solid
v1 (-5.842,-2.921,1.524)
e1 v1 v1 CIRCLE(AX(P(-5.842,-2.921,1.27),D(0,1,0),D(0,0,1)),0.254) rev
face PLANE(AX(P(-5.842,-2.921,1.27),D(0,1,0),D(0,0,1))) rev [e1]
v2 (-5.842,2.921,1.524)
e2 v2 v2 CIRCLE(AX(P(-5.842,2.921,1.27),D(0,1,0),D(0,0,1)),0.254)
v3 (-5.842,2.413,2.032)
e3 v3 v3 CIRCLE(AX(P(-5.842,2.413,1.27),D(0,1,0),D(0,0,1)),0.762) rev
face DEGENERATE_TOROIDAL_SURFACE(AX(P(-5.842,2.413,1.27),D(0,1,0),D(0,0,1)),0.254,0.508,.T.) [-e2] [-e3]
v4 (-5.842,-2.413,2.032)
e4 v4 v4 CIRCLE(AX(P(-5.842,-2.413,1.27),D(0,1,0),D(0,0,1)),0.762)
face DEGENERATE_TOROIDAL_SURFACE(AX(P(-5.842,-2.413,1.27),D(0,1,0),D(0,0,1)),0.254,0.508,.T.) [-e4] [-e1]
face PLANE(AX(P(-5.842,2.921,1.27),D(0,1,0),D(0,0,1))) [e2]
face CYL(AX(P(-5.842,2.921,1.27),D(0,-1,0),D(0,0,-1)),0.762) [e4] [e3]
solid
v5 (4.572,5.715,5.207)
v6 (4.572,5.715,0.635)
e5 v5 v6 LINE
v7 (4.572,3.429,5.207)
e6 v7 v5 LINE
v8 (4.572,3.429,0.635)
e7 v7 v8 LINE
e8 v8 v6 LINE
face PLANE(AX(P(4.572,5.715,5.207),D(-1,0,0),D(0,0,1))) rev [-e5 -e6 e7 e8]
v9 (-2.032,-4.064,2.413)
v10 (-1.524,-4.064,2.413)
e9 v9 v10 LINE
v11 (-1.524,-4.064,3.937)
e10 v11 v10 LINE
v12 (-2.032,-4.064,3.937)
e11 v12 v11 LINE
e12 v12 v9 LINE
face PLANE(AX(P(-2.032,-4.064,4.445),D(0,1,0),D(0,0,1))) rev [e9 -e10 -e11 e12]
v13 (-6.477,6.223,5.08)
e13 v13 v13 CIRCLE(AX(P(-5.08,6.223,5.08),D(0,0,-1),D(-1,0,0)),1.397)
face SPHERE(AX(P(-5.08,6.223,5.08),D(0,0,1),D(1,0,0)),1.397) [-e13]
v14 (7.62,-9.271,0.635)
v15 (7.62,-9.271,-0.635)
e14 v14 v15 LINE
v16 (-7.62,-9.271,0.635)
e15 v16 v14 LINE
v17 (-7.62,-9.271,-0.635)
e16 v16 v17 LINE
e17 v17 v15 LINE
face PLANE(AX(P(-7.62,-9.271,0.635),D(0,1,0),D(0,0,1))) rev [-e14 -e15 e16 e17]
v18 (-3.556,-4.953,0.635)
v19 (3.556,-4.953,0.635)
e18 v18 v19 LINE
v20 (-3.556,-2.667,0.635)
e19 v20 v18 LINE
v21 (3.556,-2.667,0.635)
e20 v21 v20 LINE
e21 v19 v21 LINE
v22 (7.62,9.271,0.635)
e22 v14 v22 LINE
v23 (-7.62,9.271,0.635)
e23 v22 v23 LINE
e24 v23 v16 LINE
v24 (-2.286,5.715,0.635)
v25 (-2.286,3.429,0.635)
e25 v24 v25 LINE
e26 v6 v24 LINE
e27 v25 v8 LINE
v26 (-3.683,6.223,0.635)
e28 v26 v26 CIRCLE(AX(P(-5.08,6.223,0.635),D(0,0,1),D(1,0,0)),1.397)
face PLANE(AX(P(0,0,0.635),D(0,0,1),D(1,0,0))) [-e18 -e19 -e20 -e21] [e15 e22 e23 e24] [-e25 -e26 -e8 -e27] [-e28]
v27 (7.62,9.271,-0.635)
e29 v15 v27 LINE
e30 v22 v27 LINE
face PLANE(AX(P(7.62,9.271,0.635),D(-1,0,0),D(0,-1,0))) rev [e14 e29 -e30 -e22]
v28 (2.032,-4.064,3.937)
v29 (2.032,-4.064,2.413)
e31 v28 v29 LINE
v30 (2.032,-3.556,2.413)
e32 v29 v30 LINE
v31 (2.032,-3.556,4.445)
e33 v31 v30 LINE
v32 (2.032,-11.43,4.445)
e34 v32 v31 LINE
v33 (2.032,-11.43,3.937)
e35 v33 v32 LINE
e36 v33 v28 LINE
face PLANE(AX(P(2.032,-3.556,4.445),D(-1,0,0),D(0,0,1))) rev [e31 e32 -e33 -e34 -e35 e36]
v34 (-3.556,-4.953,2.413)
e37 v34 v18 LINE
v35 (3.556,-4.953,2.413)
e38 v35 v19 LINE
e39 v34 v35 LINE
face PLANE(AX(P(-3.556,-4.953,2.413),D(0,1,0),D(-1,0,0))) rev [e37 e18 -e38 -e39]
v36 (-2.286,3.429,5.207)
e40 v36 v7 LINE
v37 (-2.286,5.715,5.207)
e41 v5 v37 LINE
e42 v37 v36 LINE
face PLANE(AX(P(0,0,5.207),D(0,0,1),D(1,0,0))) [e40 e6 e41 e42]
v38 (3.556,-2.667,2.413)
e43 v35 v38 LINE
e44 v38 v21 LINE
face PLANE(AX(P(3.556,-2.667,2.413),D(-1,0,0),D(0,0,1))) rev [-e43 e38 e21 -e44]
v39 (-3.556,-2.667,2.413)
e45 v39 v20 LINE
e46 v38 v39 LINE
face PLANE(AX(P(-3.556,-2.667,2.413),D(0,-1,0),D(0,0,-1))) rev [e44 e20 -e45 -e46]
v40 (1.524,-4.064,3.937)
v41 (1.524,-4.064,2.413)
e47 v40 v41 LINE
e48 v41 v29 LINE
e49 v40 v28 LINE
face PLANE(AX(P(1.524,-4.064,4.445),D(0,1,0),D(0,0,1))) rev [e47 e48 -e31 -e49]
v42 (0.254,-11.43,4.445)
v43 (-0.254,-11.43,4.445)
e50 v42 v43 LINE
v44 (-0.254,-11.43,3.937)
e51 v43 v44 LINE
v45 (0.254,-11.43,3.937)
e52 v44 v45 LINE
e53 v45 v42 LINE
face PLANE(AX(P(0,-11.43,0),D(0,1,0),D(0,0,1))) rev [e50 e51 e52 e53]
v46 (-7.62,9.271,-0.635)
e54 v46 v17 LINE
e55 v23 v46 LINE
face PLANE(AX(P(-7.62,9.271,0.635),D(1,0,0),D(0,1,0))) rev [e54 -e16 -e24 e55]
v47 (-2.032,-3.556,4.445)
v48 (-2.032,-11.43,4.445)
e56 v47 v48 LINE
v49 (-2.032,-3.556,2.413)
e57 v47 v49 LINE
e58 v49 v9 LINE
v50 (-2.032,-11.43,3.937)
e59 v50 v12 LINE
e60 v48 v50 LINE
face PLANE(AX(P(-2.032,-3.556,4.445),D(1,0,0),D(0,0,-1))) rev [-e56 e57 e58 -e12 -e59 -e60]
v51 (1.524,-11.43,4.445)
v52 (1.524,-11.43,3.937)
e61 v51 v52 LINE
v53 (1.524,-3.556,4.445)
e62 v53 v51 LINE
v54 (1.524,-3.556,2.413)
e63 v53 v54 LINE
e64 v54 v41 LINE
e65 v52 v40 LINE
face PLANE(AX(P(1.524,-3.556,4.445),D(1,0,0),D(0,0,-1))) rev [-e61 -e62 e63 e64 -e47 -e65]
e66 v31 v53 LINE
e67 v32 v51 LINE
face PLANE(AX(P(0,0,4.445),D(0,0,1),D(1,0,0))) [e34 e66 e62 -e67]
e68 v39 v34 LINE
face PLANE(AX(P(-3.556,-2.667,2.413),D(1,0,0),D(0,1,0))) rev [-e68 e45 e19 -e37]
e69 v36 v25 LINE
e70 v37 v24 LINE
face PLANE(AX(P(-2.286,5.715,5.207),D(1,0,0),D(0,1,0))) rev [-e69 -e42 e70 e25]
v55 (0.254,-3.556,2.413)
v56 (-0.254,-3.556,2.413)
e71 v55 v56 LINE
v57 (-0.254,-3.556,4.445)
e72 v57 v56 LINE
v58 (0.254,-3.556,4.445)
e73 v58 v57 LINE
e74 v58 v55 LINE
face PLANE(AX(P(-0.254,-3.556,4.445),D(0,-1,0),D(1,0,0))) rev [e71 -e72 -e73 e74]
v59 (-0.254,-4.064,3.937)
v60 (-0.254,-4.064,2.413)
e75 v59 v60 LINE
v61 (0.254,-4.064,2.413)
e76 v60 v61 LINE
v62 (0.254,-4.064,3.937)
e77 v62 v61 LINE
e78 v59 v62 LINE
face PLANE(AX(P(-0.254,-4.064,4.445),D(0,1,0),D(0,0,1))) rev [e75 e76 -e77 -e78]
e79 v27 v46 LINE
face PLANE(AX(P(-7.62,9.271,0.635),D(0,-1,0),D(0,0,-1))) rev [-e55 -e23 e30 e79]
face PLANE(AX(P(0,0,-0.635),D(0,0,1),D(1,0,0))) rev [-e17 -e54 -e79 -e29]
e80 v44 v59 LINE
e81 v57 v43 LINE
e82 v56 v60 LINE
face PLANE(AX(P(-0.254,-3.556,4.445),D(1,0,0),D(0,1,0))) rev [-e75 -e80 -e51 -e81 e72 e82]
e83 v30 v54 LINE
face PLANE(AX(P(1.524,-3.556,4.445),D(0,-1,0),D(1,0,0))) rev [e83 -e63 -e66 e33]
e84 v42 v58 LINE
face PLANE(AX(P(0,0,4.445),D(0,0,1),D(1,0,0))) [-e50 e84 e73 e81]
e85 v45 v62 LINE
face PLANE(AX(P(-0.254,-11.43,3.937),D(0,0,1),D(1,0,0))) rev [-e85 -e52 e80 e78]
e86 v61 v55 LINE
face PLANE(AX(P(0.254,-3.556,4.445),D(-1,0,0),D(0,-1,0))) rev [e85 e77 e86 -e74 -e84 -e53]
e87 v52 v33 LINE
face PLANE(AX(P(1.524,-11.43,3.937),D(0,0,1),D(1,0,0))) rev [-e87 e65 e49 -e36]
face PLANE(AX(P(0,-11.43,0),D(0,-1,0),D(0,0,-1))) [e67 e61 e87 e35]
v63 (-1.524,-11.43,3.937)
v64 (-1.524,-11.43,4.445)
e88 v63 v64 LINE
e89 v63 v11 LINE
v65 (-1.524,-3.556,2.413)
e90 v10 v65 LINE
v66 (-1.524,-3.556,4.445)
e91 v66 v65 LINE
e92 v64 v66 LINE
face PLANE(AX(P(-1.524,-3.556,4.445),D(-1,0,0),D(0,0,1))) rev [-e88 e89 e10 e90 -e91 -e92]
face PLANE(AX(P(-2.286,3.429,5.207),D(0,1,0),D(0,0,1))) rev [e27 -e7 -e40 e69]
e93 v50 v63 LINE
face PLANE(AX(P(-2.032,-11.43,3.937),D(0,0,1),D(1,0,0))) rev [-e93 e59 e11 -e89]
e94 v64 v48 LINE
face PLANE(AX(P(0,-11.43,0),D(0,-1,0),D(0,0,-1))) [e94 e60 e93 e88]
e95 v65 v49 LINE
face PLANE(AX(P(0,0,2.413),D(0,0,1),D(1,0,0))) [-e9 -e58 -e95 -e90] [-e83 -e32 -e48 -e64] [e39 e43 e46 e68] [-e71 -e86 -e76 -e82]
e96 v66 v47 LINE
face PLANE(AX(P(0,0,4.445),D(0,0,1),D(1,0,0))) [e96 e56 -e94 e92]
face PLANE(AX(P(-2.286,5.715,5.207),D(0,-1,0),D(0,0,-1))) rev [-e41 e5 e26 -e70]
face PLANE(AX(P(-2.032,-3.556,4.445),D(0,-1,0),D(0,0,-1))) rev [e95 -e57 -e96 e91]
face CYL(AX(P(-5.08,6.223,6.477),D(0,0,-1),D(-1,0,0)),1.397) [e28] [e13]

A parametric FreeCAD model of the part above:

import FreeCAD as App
import Part
import Sketcher
from FreeCAD import Vector
Q = App.Units.Quantity


def edges_at(feature, points):
    """Names of the edges that pass closest to the given points."""
    edges = feature.Shape.Edges
    near = lambda p: min(range(len(edges)), key=lambda i: edges[i].distToShape(Part.Vertex(*p))[0])
    return sorted({f"Edge{near(p) + 1}" for p in points})


def add_polygon(sketch, points):
    """Adds a closed chain of lines whose ends are joined by coincident constraints."""
    first, n = sketch.GeometryCount, len(points)
    for a, b in zip(points, points[1:] + points[:1]):
        sketch.addGeometry(Part.LineSegment(App.Vector(*a, 0), App.Vector(*b, 0)), False)
    for i in range(n):
        sketch.addConstraint(Sketcher.Constraint("Coincident", first + i, 2, first + (i + 1) % n, 1))

doc = App.newDocument("Part")
params = doc.addObject("Spreadsheet::Sheet", "Params")
for row, (alias, value) in enumerate([
    ("sketch1_width", "0.6 in"),
    ("sketch1_height", "0.73 in"),
    ("pad1_length", "0.05 in"),
    ("sketch2_width", "0.28 in"),
    ("sketch2_height", "0.09 in"),
    ("pad2_length", "0.07 in"),
    ("sketch3_width", "0.02 in"),
    ("pad3_length", "0.08 in"),
    ("sketch4_width", "0.02 in"),
    ("pad4_length", "0.29 in"),
    ("sketch5_width", "0.27 in"),
    ("sketch5_height", "0.09 in"),
    ("pad5_length", "0.18 in"),
    ("sketch6_diameter", "0.11 in"),
    ("pad6_length", "0.23 in"),
    ("fillet_radius", "0.055 in"),
    ("sketch7_diameter", "0.06 in"),
    ("pad7_length", "0.23 in"),
    ("fillet2_radius", "0.02 in"),
], start=1):
    params.set(f"A{row}", alias)
    params.set(f"B{row}", "=" + value)
    params.setAlias(f"B{row}", alias)

body = doc.addObject("PartDesign::Body", "Body")

# Sketch on XY plane
sketch1 = body.newObject("Sketcher::SketchObject", "Sketch")
sketch1.AttachmentSupport = (doc.getObject("XY_Plane"), [""])
sketch1.MapMode = "FlatFace"
add_polygon(sketch1, [(-8, 9), (-8, -9), (8, -9), (8, 9)])  # lines 0-3
sketch1.addConstraint([
    Sketcher.Constraint("Vertical", 0),
    Sketcher.Constraint("Horizontal", 1),
    Sketcher.Constraint("Vertical", 2),
    Sketcher.Constraint("Horizontal", 3),
    Sketcher.Constraint("Symmetric", 0, 2, 2, 2, -1, 1),
    Sketcher.Constraint("DistanceX", 1, 1, 1, 2, Q("0.6 in")),
    Sketcher.Constraint("DistanceY", 0, 2, 0, 1, Q("0.73 in")),
])
sketch1.setExpression("Constraints[9]", "Params.sketch1_width")
sketch1.setExpression("Constraints[10]", "Params.sketch1_height")
pad1 = body.newObject("PartDesign::Pad", "Pad")
pad1.Profile = sketch1
pad1.setExpression("Length", "Params.pad1_length")
pad1.Midplane = True

# Sketch on XY plane
sketch2 = body.newObject("Sketcher::SketchObject", "Sketch001")
sketch2.AttachmentSupport = (doc.getObject("XY_Plane"), [""])
sketch2.MapMode = "FlatFace"
sketch2.AttachmentOffset = App.Placement(Vector(0, 0, 0.025 * 25.4), App.Rotation())
add_polygon(sketch2, [(-3.6, -2.7), (-3.6, -5), (3.6, -5), (3.6, -2.7)])  # lines 0-3
sketch2.addConstraint([
    Sketcher.Constraint("Vertical", 0),
    Sketcher.Constraint("Horizontal", 1),
    Sketcher.Constraint("Vertical", 2),
    Sketcher.Constraint("Horizontal", 3),
    Sketcher.Constraint("DistanceX", 1, 1, 1, 2, Q("0.28 in")),
    Sketcher.Constraint("DistanceY", 0, 2, 0, 1, Q("0.09 in")),
    Sketcher.Constraint("DistanceX", 0, 2, -1, 1, Q("0.14 in")),
    Sketcher.Constraint("DistanceY", 0, 2, -1, 1, Q("0.195 in")),
])
sketch2.setExpression("Constraints[8]", "Params.sketch2_width")
sketch2.setExpression("Constraints[9]", "Params.sketch2_height")
pad2 = body.newObject("PartDesign::Pad", "Pad001")
pad2.Profile = sketch2
pad2.setExpression("Length", "Params.pad2_length")

# Sketch on XY plane
sketch3 = body.newObject("Sketcher::SketchObject", "Sketch002")
sketch3.AttachmentSupport = (doc.getObject("XY_Plane"), [""])
sketch3.MapMode = "FlatFace"
sketch3.AttachmentOffset = App.Placement(Vector(0, 0, 0.095 * 25.4), App.Rotation())
add_polygon(sketch3, [(-2, -3.6), (-2, -4.1), (-1.5, -4.1), (-1.5, -3.6)])  # lines 0-3
add_polygon(sketch3, [(-0.3, -3.6), (-0.3, -4.1), (0.3, -4.1), (0.3, -3.6)])  # lines 4-7
add_polygon(sketch3, [(1.5, -3.6), (1.5, -4.1), (2, -4.1), (2, -3.6)])  # lines 8-11
sketch3.addConstraint([
    Sketcher.Constraint("Vertical", 0),
    Sketcher.Constraint("Horizontal", 1),
    Sketcher.Constraint("Vertical", 2),
    Sketcher.Constraint("Horizontal", 3),
    Sketcher.Constraint("Vertical", 4),
    Sketcher.Constraint("Horizontal", 5),
    Sketcher.Constraint("Vertical", 6),
    Sketcher.Constraint("Horizontal", 7),
    Sketcher.Constraint("Vertical", 8),
    Sketcher.Constraint("Horizontal", 9),
    Sketcher.Constraint("Vertical", 10),
    Sketcher.Constraint("Horizontal", 11),
    Sketcher.Constraint("Symmetric", 1, 2, 8, 2, -2),
    Sketcher.Constraint("Symmetric", 3, 2, 10, 2, -2),
    Sketcher.Constraint("Horizontal", 1, 2, 4, 2),
    Sketcher.Constraint("Horizontal", 3, 2, 6, 2),
    Sketcher.Constraint("Equal", 3, 5),
    Sketcher.Constraint("Equal", 11, 0),
    Sketcher.Constraint("DistanceX", 1, 1, 1, 2, Q("0.02 in")),
    Sketcher.Constraint("DistanceX", 0, 2, -1, 1, Q("0.08 in")),
    Sketcher.Constraint("DistanceY", 0, 2, -1, 1, Q("0.16 in")),
    Sketcher.Constraint("DistanceX", 4, 2, -1, 1, Q("0.01 in")),
])
sketch3.setExpression("Constraints[30]", "Params.sketch3_width")
pad3 = body.newObject("PartDesign::Pad", "Pad002")
pad3.Profile = sketch3
pad3.setExpression("Length", "Params.pad3_length")

# Sketch on XZ plane
sketch4 = body.newObject("Sketcher::SketchObject", "Sketch003")
sketch4.AttachmentSupport = (doc.getObject("XZ_Plane"), [""])
sketch4.MapMode = "FlatFace"
sketch4.AttachmentOffset = App.Placement(Vector(0, 0, 0.16 * 25.4), App.Rotation())
add_polygon(sketch4, [(-2, 4.4), (-2, 3.9), (-1.5, 3.9), (-1.5, 4.4)])  # lines 0-3
add_polygon(sketch4, [(-0.3, 4.4), (-0.3, 3.9), (0.3, 3.9), (0.3, 4.4)])  # lines 4-7
add_polygon(sketch4, [(1.5, 4.4), (1.5, 3.9), (2, 3.9), (2, 4.4)])  # lines 8-11
sketch4.addConstraint([
    Sketcher.Constraint("Vertical", 0),
    Sketcher.Constraint("Horizontal", 1),
    Sketcher.Constraint("Vertical", 2),
    Sketcher.Constraint("Horizontal", 3),
    Sketcher.Constraint("Vertical", 4),
    Sketcher.Constraint("Horizontal", 5),
    Sketcher.Constraint("Vertical", 6),
    Sketcher.Constraint("Horizontal", 7),
    Sketcher.Constraint("Vertical", 8),
    Sketcher.Constraint("Horizontal", 9),
    Sketcher.Constraint("Vertical", 10),
    Sketcher.Constraint("Horizontal", 11),
    Sketcher.Constraint("Symmetric", 1, 2, 8, 2, -2),
    Sketcher.Constraint("Symmetric", 3, 2, 10, 2, -2),
    Sketcher.Constraint("Horizontal", 1, 2, 4, 2),
    Sketcher.Constraint("Horizontal", 3, 2, 6, 2),
    Sketcher.Constraint("Equal", 3, 5),
    Sketcher.Constraint("Equal", 11, 0),
    Sketcher.Constraint("DistanceX", 1, 1, 1, 2, Q("0.02 in")),
    Sketcher.Constraint("DistanceX", 0, 2, -1, 1, Q("0.08 in")),
    Sketcher.Constraint("DistanceX", 4, 2, -1, 1, Q("0.01 in")),
    Sketcher.Constraint("DistanceY", -1, 1, 0, 2, Q("0.155 in")),
])
sketch4.setExpression("Constraints[30]", "Params.sketch4_width")
pad4 = body.newObject("PartDesign::Pad", "Pad003")
pad4.Profile = sketch4
pad4.setExpression("Length", "Params.pad4_length")

# Sketch on XY plane
sketch5 = body.newObject("Sketcher::SketchObject", "Sketch004")
sketch5.AttachmentSupport = (doc.getObject("XY_Plane"), [""])
sketch5.MapMode = "FlatFace"
sketch5.AttachmentOffset = App.Placement(Vector(0, 0, 0.025 * 25.4), App.Rotation())
add_polygon(sketch5, [(-2.3, 5.7), (-2.3, 3.4), (4.6, 3.4), (4.6, 5.7)])  # lines 0-3
sketch5.addConstraint([
    Sketcher.Constraint("Vertical", 0),
    Sketcher.Constraint("Horizontal", 1),
    Sketcher.Constraint("Vertical", 2),
    Sketcher.Constraint("Horizontal", 3),
    Sketcher.Constraint("DistanceX", 1, 1, 1, 2, Q("0.27 in")),
    Sketcher.Constraint("DistanceY", 0, 2, 0, 1, Q("0.09 in")),
    Sketcher.Constraint("DistanceX", 0, 2, -1, 1, Q("0.09 in")),
    Sketcher.Constraint("DistanceY", -1, 1, 0, 2, Q("0.135 in")),
])
sketch5.setExpression("Constraints[8]", "Params.sketch5_width")
sketch5.setExpression("Constraints[9]", "Params.sketch5_height")
pad5 = body.newObject("PartDesign::Pad", "Pad004")
pad5.Profile = sketch5
pad5.setExpression("Length", "Params.pad5_length")

# Sketch on XY plane
sketch6 = body.newObject("Sketcher::SketchObject", "Sketch005")
sketch6.AttachmentSupport = (doc.getObject("XY_Plane"), [""])
sketch6.MapMode = "FlatFace"
sketch6.AttachmentOffset = App.Placement(Vector(0, 0, 0.025 * 25.4), App.Rotation())
sketch6.addGeometry(Part.Circle(Vector(-5.1, 6.2, 0), Vector(0, 0, 1), 1.4), False)
sketch6.addConstraint([
    Sketcher.Constraint("Diameter", 0, Q("0.11 in")),
    Sketcher.Constraint("DistanceX", 0, 3, -1, 1, Q("0.2 in")),
    Sketcher.Constraint("DistanceY", -1, 1, 0, 3, Q("0.245 in")),
])
sketch6.setExpression("Constraints[0]", "Params.sketch6_diameter")
pad6 = body.newObject("PartDesign::Pad", "Pad005")
pad6.Profile = sketch6
pad6.setExpression("Length", "Params.pad6_length")
doc.recompute()

fillet = body.newObject("PartDesign::Fillet", "Fillet")
fillet.Base = (pad6, edges_at(pad6, [(-6.477, 6.223, 6.477)]))
fillet.setExpression("Radius", "Params.fillet_radius")
body2 = doc.addObject("PartDesign::Body", "Body001")

# Sketch on XZ plane
sketch7 = body2.newObject("Sketcher::SketchObject", "Sketch006")
sketch7.AttachmentSupport = (doc.getObject("XZ_Plane001"), [""])
sketch7.MapMode = "FlatFace"
sketch7.addGeometry(Part.Circle(Vector(-5.8, 1.3, 0), Vector(0, 0, 1), 0.8), False)
sketch7.addConstraint([
    Sketcher.Constraint("Diameter", 0, Q("0.06 in")),
    Sketcher.Constraint("DistanceX", 0, 3, -1, 1, Q("0.23 in")),
    Sketcher.Constraint("DistanceY", -1, 1, 0, 3, Q("0.05 in")),
])
sketch7.setExpression("Constraints[0]", "Params.sketch7_diameter")
pad7 = body2.newObject("PartDesign::Pad", "Pad006")
pad7.Profile = sketch7
pad7.setExpression("Length", "Params.pad7_length")
pad7.Midplane = True
doc.recompute()

fillet2 = body2.newObject("PartDesign::Fillet", "Fillet001")
fillet2.Base = (pad7, edges_at(pad7, [(-5.842, -2.921, 0.508), (-5.842, 2.921, 0.508)]))
fillet2.setExpression("Radius", "Params.fillet2_radius")

doc.recompute()
